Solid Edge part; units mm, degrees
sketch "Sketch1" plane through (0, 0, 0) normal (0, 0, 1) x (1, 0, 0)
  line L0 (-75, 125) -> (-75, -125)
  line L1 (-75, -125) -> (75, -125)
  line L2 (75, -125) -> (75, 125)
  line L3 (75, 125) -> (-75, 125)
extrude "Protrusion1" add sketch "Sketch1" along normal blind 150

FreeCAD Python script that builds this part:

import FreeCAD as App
import Part
import Sketcher
Q = App.Units.Quantity


def add_polygon(sketch, points):
    """Adds a closed chain of lines whose ends are joined by coincident constraints."""
    first, n = sketch.GeometryCount, len(points)
    for a, b in zip(points, points[1:] + points[:1]):
        sketch.addGeometry(Part.LineSegment(App.Vector(*a, 0), App.Vector(*b, 0)), False)
    for i in range(n):
        sketch.addConstraint(Sketcher.Constraint("Coincident", first + i, 2, first + (i + 1) % n, 1))

doc = App.newDocument("Part")
params = doc.addObject("Spreadsheet::Sheet", "Params")
for row, (alias, value) in enumerate([
    ("sketch1_width", "150 mm"),
    ("sketch1_height", "250 mm"),
    ("pad1_length", "150 mm"),
], start=1):
    params.set(f"A{row}", alias)
    params.set(f"B{row}", "=" + value)
    params.setAlias(f"B{row}", alias)

body = doc.addObject("PartDesign::Body", "Body")

# Sketch on XY plane
sketch1 = doc.addObject("Sketcher::SketchObject", "Sketch")
body.addObject(sketch1)
sketch1.AttachmentSupport = (doc.XY_Plane, [""])
sketch1.MapMode = "FlatFace"
add_polygon(sketch1, [(75, 125), (-75, 125), (-75, -125), (75, -125)])  # lines 0-3
sketch1.addConstraint(Sketcher.Constraint("Horizontal", 0))
sketch1.addConstraint(Sketcher.Constraint("Vertical", 1))
sketch1.addConstraint(Sketcher.Constraint("Horizontal", 2))
sketch1.addConstraint(Sketcher.Constraint("Vertical", 3))
sketch1.addConstraint(Sketcher.Constraint("Symmetric", 0, 2, 2, 2, -1, 1))
sketch1.addConstraint(Sketcher.Constraint("DistanceX", 0, 2, 0, 1, Q("150 mm")))
sketch1.addConstraint(Sketcher.Constraint("DistanceY", 1, 2, 1, 1, Q("250 mm")))
sketch1.setExpression("Constraints[9]", "Params.sketch1_width")
sketch1.setExpression("Constraints[10]", "Params.sketch1_height")
pad1 = doc.addObject("PartDesign::Pad", "Pad")
body.addObject(pad1)
pad1.Profile = sketch1
pad1.setExpression("Length", "Params.pad1_length")

doc.recompute()
